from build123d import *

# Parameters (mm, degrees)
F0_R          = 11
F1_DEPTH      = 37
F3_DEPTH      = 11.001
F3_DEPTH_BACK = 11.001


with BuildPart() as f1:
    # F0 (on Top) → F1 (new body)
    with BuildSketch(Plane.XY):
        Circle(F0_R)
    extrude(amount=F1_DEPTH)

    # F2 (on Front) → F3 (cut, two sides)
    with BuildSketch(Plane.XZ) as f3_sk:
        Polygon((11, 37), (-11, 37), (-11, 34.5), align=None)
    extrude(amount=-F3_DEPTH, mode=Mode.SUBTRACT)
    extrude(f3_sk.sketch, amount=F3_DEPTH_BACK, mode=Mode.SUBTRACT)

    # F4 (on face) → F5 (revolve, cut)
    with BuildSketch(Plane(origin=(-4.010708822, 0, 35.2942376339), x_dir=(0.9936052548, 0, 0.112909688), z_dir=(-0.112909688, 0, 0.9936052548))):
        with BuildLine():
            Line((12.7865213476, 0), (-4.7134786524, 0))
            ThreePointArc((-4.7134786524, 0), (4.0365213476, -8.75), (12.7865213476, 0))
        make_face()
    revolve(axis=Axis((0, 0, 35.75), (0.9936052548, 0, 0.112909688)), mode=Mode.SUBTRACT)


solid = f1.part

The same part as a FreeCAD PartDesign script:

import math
import FreeCAD as App
import Part
import Sketcher

V = App.Vector

doc = App.newDocument("Part")
params = doc.addObject("Spreadsheet::Sheet", "Params")
for row, (alias, value) in enumerate([
    ("sketch1_diameter", "22 mm"),
    ("pad1_length", "37 mm"),
    ("sketch2_width", "22 mm"),
    ("sketch2_height", "2.5 mm"),
    ("sketch3_radius", "8.75 mm"),
    ("groove_angle", "360 deg"),
], start=1):
    params.set(f"A{row}", alias)
    params.set(f"B{row}", "=" + value)
    params.setAlias(f"B{row}", alias)

body = doc.addObject("PartDesign::Body", "Body")

# Sketch on XY plane
sketch1 = body.newObject("Sketcher::SketchObject", "Sketch")
sketch1.AttachmentSupport = (doc.getObject("XY_Plane"), [""])
sketch1.MapMode = "FlatFace"
sketch1.addGeometry(Part.Circle(V(0, 0, 0), V(0, 0, 1), 11), False)
sketch1.addConstraint(Sketcher.Constraint("Coincident", 0, 3, -1, 1))
sketch1.addConstraint(Sketcher.Constraint("Diameter", 0, 22.0))
sketch1.setExpression("Constraints[1]", "Params.sketch1_diameter")
pad1 = body.newObject("PartDesign::Pad", "Pad")
pad1.Profile = sketch1
pad1.setExpression("Length", "Params.pad1_length")

# Sketch on XZ plane
sketch2 = body.newObject("Sketcher::SketchObject", "Sketch001")
sketch2.AttachmentSupport = (doc.getObject("XZ_Plane"), [""])
sketch2.MapMode = "FlatFace"
sketch2.addGeometry(Part.LineSegment(V(11, 37, 0), V(-11, 37, 0)), False)
sketch2.addGeometry(Part.LineSegment(V(-11, 37, 0), V(-11, 34.5, 0)), False)
sketch2.addGeometry(Part.LineSegment(V(-11, 34.5, 0), V(11, 37, 0)), False)
sketch2.addConstraint(Sketcher.Constraint("Coincident", 0, 2, 1, 1))
sketch2.addConstraint(Sketcher.Constraint("Coincident", 1, 2, 2, 1))
sketch2.addConstraint(Sketcher.Constraint("Coincident", 2, 2, 0, 1))
sketch2.addConstraint(Sketcher.Constraint("Horizontal", 0))
sketch2.addConstraint(Sketcher.Constraint("Vertical", 1))
sketch2.addConstraint(Sketcher.Constraint("DistanceX", 0, 2, 0, 1, 22.0))
sketch2.addConstraint(Sketcher.Constraint("DistanceY", 1, 2, 1, 1, 2.5))
sketch2.addConstraint(Sketcher.Constraint("DistanceX", 0, 2, -1, 1, 11.0))
sketch2.addConstraint(Sketcher.Constraint("DistanceY", -1, 1, 0, 2, 37.0))
sketch2.setExpression("Constraints[5]", "Params.sketch2_width")
sketch2.setExpression("Constraints[6]", "Params.sketch2_height")
pocket1 = body.newObject("PartDesign::Pocket", "Pocket")
pocket1.Profile = sketch2
pocket1.Type = "ThroughAll"
pocket1.Midplane = True

# Sketch on an angled plane
sketch3 = body.newObject("Sketcher::SketchObject", "Sketch002")
sketch3.Placement = App.Placement(V(-4.010709, 0, 35.294238), App.Rotation(V(0.993605255, 0, 0.112909688), V(0, 1, 0), V(-0.112909688, 0, 0.993605255), "ZXY"))
sketch3.addGeometry(Part.LineSegment(V(13, 0, 0), V(-5, 0, 0)), False)
sketch3.addGeometry(Part.ArcOfCircle(Part.Circle(V(4, 0, 0), V(0, 0, 1), 9), math.radians(180), math.radians(360)), False)
sketch3.addConstraint(Sketcher.Constraint("Coincident", 0, 1, 1, 2))
sketch3.addConstraint(Sketcher.Constraint("Coincident", 1, 1, 0, 2))
sketch3.addConstraint(Sketcher.Constraint("Horizontal", 0))
sketch3.addConstraint(Sketcher.Constraint("PointOnObject", 1, 3, -1))
sketch3.addConstraint(Sketcher.Constraint("PointOnObject", 0, 1, -1))
sketch3.addConstraint(Sketcher.Constraint("Radius", 1, 8.75))
sketch3.addConstraint(Sketcher.Constraint("DistanceX", -1, 1, 1, 3, 4.036521))
sketch3.setExpression("Constraints[5]", "Params.sketch3_radius")
groove = body.newObject("PartDesign::Groove", "Groove")
groove.Profile = sketch3
groove.ReferenceAxis = (sketch3, ["H_Axis"])
groove.setExpression("Angle", "Params.groove_angle")

doc.recompute()
